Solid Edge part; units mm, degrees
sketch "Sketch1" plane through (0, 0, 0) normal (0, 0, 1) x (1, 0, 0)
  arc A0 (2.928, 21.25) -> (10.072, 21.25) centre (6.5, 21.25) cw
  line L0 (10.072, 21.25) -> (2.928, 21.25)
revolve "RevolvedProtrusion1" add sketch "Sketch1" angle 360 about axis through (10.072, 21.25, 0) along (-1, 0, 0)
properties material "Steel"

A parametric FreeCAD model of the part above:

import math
import FreeCAD as App
import Part
import Sketcher
from FreeCAD import Vector

doc = App.newDocument("Part")
body = doc.addObject("PartDesign::Body", "Body")

# Sketch on XY plane
sketch1 = body.newObject("Sketcher::SketchObject", "Sketch")
sketch1.AttachmentSupport = (doc.getObject("XY_Plane"), [""])
sketch1.MapMode = "FlatFace"
sketch1.addGeometry([
    Part.ArcOfCircle(Part.Circle(Vector(6.5, 21.2, 0), Vector(0, 0, 1), 3.6), math.radians(0), math.radians(180)),
    Part.LineSegment(Vector(2.9, 21.2, 0), Vector(10.1, 21.2, 0)),
], False)
sketch1.addGeometry(Part.LineSegment(Vector(10.1, 21.2, 0), Vector(2.9, 21.2, 0)), True)  # axis
sketch1.addConstraint([
    Sketcher.Constraint("Coincident", 0, 1, 1, 2),
    Sketcher.Constraint("Coincident", 1, 1, 0, 2),
    Sketcher.Constraint("Horizontal", 1),
    Sketcher.Constraint("Horizontal", 2),
    Sketcher.Constraint("Coincident", 2, 1, 0, 1),
    Sketcher.Constraint("Equal", 1, 2),
    Sketcher.Constraint("Radius", 0, 3.572),
    Sketcher.Constraint("DistanceX", -1, 1, 0, 3, 6.5),
    Sketcher.Constraint("DistanceY", -1, 1, 0, 3, 21.25),
    Sketcher.Constraint("DistanceY", -1, 1, 0, 1, 21.25),
])
revolution = body.newObject("PartDesign::Revolution", "Revolution")
revolution.Profile = sketch1
revolution.ReferenceAxis = (sketch1, ["Axis0"])
revolution.Angle = 360

doc.recompute()
